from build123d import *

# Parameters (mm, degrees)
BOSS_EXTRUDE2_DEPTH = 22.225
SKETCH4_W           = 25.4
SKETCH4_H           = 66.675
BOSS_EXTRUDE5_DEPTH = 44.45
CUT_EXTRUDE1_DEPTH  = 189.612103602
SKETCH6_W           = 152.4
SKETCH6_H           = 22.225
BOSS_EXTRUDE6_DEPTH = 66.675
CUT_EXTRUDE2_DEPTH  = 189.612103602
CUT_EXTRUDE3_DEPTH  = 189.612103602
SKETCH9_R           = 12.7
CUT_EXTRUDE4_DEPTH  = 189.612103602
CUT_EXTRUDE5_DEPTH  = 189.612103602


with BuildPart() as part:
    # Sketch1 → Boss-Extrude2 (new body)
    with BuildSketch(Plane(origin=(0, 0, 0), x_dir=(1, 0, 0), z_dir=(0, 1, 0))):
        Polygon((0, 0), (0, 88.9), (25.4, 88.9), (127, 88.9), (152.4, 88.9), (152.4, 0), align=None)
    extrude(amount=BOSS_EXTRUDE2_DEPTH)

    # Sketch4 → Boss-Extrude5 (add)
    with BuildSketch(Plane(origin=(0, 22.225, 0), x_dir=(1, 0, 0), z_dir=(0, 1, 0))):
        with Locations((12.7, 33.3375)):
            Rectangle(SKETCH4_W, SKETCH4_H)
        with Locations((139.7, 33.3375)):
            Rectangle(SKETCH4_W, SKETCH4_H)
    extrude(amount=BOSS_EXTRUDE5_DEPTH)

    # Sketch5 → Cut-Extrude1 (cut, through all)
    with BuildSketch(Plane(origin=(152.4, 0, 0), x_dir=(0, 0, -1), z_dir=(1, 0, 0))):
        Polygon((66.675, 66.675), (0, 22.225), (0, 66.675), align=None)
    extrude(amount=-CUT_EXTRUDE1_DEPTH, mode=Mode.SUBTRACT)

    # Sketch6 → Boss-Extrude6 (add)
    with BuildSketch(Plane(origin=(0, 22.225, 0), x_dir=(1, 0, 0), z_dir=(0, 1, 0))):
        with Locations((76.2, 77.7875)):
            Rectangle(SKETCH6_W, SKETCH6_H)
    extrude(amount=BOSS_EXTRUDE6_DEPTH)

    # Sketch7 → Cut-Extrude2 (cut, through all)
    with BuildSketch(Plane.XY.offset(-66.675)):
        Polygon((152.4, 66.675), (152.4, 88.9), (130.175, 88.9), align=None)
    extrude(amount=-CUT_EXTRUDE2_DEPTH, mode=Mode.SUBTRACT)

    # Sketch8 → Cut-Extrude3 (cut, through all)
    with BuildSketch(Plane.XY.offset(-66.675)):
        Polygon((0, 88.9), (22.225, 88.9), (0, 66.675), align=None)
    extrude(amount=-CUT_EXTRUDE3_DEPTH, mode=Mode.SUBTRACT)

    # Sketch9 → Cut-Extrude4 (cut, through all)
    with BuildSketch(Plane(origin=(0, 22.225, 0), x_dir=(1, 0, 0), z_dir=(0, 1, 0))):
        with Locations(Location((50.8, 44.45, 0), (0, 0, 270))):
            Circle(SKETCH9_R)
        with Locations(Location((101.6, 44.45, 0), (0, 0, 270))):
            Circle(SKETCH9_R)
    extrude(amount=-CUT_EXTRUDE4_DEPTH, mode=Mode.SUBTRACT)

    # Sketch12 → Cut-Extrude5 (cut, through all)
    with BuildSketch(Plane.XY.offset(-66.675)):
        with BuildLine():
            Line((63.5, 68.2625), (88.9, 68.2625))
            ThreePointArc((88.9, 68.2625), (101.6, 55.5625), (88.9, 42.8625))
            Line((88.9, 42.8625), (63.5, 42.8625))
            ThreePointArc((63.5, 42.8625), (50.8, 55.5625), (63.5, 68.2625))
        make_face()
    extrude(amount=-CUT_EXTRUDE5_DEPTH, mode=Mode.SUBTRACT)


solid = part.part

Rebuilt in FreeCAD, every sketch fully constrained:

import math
import FreeCAD as App
import Part
import Sketcher
Q = App.Units.Quantity

doc = App.newDocument("Part")
params = doc.addObject("Spreadsheet::Sheet", "Params")
for row, (alias, value) in enumerate([
    ("sketch1_width", "6 in"),
    ("sketch1_height", "3.5 in"),
    ("pad1_length", "0.875 in"),
    ("sketch2_width", "1 in"),
    ("sketch2_height", "2.625 in"),
    ("pad2_length", "1.75 in"),
    ("sketch3_width", "1.75 in"),
    ("sketch3_height", "2.625 in"),
    ("sketch4_width", "6 in"),
    ("sketch4_height", "0.875 in"),
    ("pad3_length", "2.625 in"),
    ("sketch5_width", "0.875 in"),
    ("sketch6_width", "0.875 in"),
    ("sketch7_diameter", "1 in"),
    ("sketch8_radius", "0.5 in"),
    ("sketch8_width", "1 in"),
], start=1):
    params.set(f"A{row}", alias)
    params.set(f"B{row}", "=" + value)
    params.setAlias(f"B{row}", alias)

body = doc.addObject("PartDesign::Body", "Body")

sketch1 = doc.addObject("Sketcher::SketchObject", "Sketch")
body.addObject(sketch1)
sketch1.AttachmentSupport = (doc.XZ_Plane, [""])
sketch1.MapMode = "FlatFace"
sketch1.addGeometry(Part.LineSegment(App.Vector(0, -88.9, 0), App.Vector(0, 0, 0)), False)
sketch1.addGeometry(Part.LineSegment(App.Vector(0, 0, 0), App.Vector(152.4, 0, 0)), False)
sketch1.addGeometry(Part.LineSegment(App.Vector(152.4, 0, 0), App.Vector(152.4, -88.9, 0)), False)
sketch1.addGeometry(Part.LineSegment(App.Vector(152.4, -88.9, 0), App.Vector(0, -88.9, 0)), False)
sketch1.addConstraint(Sketcher.Constraint("Coincident", 0, 2, 1, 1))
sketch1.addConstraint(Sketcher.Constraint("Coincident", 1, 2, 2, 1))
sketch1.addConstraint(Sketcher.Constraint("Coincident", 2, 2, 3, 1))
sketch1.addConstraint(Sketcher.Constraint("Coincident", 3, 2, 0, 1))
sketch1.addConstraint(Sketcher.Constraint("Vertical", 0))
sketch1.addConstraint(Sketcher.Constraint("Horizontal", 1))
sketch1.addConstraint(Sketcher.Constraint("Vertical", 2))
sketch1.addConstraint(Sketcher.Constraint("Horizontal", 3))
sketch1.addConstraint(Sketcher.Constraint("Coincident", 0, 2, -1, 1))
sketch1.addConstraint(Sketcher.Constraint("DistanceX", 1, 1, 1, 2, Q("6 in")))
sketch1.addConstraint(Sketcher.Constraint("DistanceY", 0, 1, 0, 2, Q("3.5 in")))
sketch1.setExpression("Constraints[9]", "Params.sketch1_width")
sketch1.setExpression("Constraints[10]", "Params.sketch1_height")
pad1 = doc.addObject("PartDesign::Pad", "Pad")
body.addObject(pad1)
pad1.Profile = sketch1
pad1.setExpression("Length", "Params.pad1_length")
pad1.Reversed = True

sketch2 = doc.addObject("Sketcher::SketchObject", "Sketch001")
body.addObject(sketch2)
sketch2.AttachmentSupport = (doc.XZ_Plane, [""])
sketch2.MapMode = "FlatFace"
sketch2.AttachmentOffset = App.Placement(App.Vector(0, 0, -0.875 * 25.4), App.Rotation())
sketch2.addGeometry(Part.LineSegment(App.Vector(0, -66.675, 0), App.Vector(0, 0, 0)), False)
sketch2.addGeometry(Part.LineSegment(App.Vector(0, 0, 0), App.Vector(25.4, 0, 0)), False)
sketch2.addGeometry(Part.LineSegment(App.Vector(25.4, 0, 0), App.Vector(25.4, -66.675, 0)), False)
sketch2.addGeometry(Part.LineSegment(App.Vector(25.4, -66.675, 0), App.Vector(0, -66.675, 0)), False)
sketch2.addGeometry(Part.LineSegment(App.Vector(127, -66.675, 0), App.Vector(127, 0, 0)), False)
sketch2.addGeometry(Part.LineSegment(App.Vector(127, 0, 0), App.Vector(152.4, 0, 0)), False)
sketch2.addGeometry(Part.LineSegment(App.Vector(152.4, 0, 0), App.Vector(152.4, -66.675, 0)), False)
sketch2.addGeometry(Part.LineSegment(App.Vector(152.4, -66.675, 0), App.Vector(127, -66.675, 0)), False)
sketch2.addConstraint(Sketcher.Constraint("Coincident", 0, 2, 1, 1))
sketch2.addConstraint(Sketcher.Constraint("Coincident", 1, 2, 2, 1))
sketch2.addConstraint(Sketcher.Constraint("Coincident", 2, 2, 3, 1))
sketch2.addConstraint(Sketcher.Constraint("Coincident", 3, 2, 0, 1))
sketch2.addConstraint(Sketcher.Constraint("Coincident", 4, 2, 5, 1))
sketch2.addConstraint(Sketcher.Constraint("Coincident", 5, 2, 6, 1))
sketch2.addConstraint(Sketcher.Constraint("Coincident", 6, 2, 7, 1))
sketch2.addConstraint(Sketcher.Constraint("Coincident", 7, 2, 4, 1))
sketch2.addConstraint(Sketcher.Constraint("Vertical", 0))
sketch2.addConstraint(Sketcher.Constraint("Horizontal", 1))
sketch2.addConstraint(Sketcher.Constraint("Vertical", 2))
sketch2.addConstraint(Sketcher.Constraint("Horizontal", 3))
sketch2.addConstraint(Sketcher.Constraint("Vertical", 4))
sketch2.addConstraint(Sketcher.Constraint("Horizontal", 5))
sketch2.addConstraint(Sketcher.Constraint("Vertical", 6))
sketch2.addConstraint(Sketcher.Constraint("Horizontal", 7))
sketch2.addConstraint(Sketcher.Constraint("Coincident", 0, 2, -1, 1))
sketch2.addConstraint(Sketcher.Constraint("PointOnObject", 4, 2, -1))
sketch2.addConstraint(Sketcher.Constraint("Horizontal", 3, 2, 6, 2))
sketch2.addConstraint(Sketcher.Constraint("Equal", 3, 5))
sketch2.addConstraint(Sketcher.Constraint("DistanceX", 1, 1, 1, 2, Q("1 in")))
sketch2.addConstraint(Sketcher.Constraint("DistanceX", -1, 1, 4, 2, Q("5 in")))
sketch2.addConstraint(Sketcher.Constraint("DistanceY", 0, 1, 0, 2, Q("2.625 in")))
sketch2.setExpression("Constraints[20]", "Params.sketch2_width")
sketch2.setExpression("Constraints[22]", "Params.sketch2_height")
pad2 = doc.addObject("PartDesign::Pad", "Pad001")
body.addObject(pad2)
pad2.Profile = sketch2
pad2.setExpression("Length", "Params.pad2_length")
pad2.Reversed = True

sketch3 = doc.addObject("Sketcher::SketchObject", "Sketch002")
body.addObject(sketch3)
sketch3.AttachmentSupport = (doc.YZ_Plane, [""])
sketch3.MapMode = "FlatFace"
sketch3.AttachmentOffset = App.Placement(App.Vector(0, 0, 6 * 25.4), App.Rotation())
sketch3.addGeometry(Part.LineSegment(App.Vector(22.225, 0, 0), App.Vector(66.675, -66.675, 0)), False)
sketch3.addGeometry(Part.LineSegment(App.Vector(66.675, -66.675, 0), App.Vector(66.675, 0, 0)), False)
sketch3.addGeometry(Part.LineSegment(App.Vector(66.675, 0, 0), App.Vector(22.225, 0, 0)), False)
sketch3.addConstraint(Sketcher.Constraint("Coincident", 0, 2, 1, 1))
sketch3.addConstraint(Sketcher.Constraint("Coincident", 1, 2, 2, 1))
sketch3.addConstraint(Sketcher.Constraint("Coincident", 2, 2, 0, 1))
sketch3.addConstraint(Sketcher.Constraint("Vertical", 1))
sketch3.addConstraint(Sketcher.Constraint("Horizontal", 2))
sketch3.addConstraint(Sketcher.Constraint("PointOnObject", 1, 2, -1))
sketch3.addConstraint(Sketcher.Constraint("DistanceX", 2, 2, 2, 1, Q("1.75 in")))
sketch3.addConstraint(Sketcher.Constraint("DistanceY", 1, 1, 1, 2, Q("2.625 in")))
sketch3.addConstraint(Sketcher.Constraint("DistanceX", -1, 1, 0, 2, Q("2.625 in")))
sketch3.setExpression("Constraints[6]", "Params.sketch3_width")
sketch3.setExpression("Constraints[7]", "Params.sketch3_height")
pocket1 = doc.addObject("PartDesign::Pocket", "Pocket")
body.addObject(pocket1)
pocket1.Profile = sketch3
pocket1.Type = "ThroughAll"

sketch4 = doc.addObject("Sketcher::SketchObject", "Sketch003")
body.addObject(sketch4)
sketch4.AttachmentSupport = (doc.XZ_Plane, [""])
sketch4.MapMode = "FlatFace"
sketch4.AttachmentOffset = App.Placement(App.Vector(0, 0, -0.875 * 25.4), App.Rotation())
sketch4.addGeometry(Part.LineSegment(App.Vector(0, -88.9, 0), App.Vector(0, -66.675, 0)), False)
sketch4.addGeometry(Part.LineSegment(App.Vector(0, -66.675, 0), App.Vector(152.4, -66.675, 0)), False)
sketch4.addGeometry(Part.LineSegment(App.Vector(152.4, -66.675, 0), App.Vector(152.4, -88.9, 0)), False)
sketch4.addGeometry(Part.LineSegment(App.Vector(152.4, -88.9, 0), App.Vector(0, -88.9, 0)), False)
sketch4.addConstraint(Sketcher.Constraint("Coincident", 0, 2, 1, 1))
sketch4.addConstraint(Sketcher.Constraint("Coincident", 1, 2, 2, 1))
sketch4.addConstraint(Sketcher.Constraint("Coincident", 2, 2, 3, 1))
sketch4.addConstraint(Sketcher.Constraint("Coincident", 3, 2, 0, 1))
sketch4.addConstraint(Sketcher.Constraint("Vertical", 0))
sketch4.addConstraint(Sketcher.Constraint("Horizontal", 1))
sketch4.addConstraint(Sketcher.Constraint("Vertical", 2))
sketch4.addConstraint(Sketcher.Constraint("Horizontal", 3))
sketch4.addConstraint(Sketcher.Constraint("PointOnObject", 0, 2, -2))
sketch4.addConstraint(Sketcher.Constraint("DistanceX", 1, 1, 1, 2, Q("6 in")))
sketch4.addConstraint(Sketcher.Constraint("DistanceY", 2, 2, -1, 1, Q("3.5 in")))
sketch4.addConstraint(Sketcher.Constraint("DistanceY", 0, 1, 0, 2, Q("0.875 in")))
sketch4.setExpression("Constraints[9]", "Params.sketch4_width")
sketch4.setExpression("Constraints[11]", "Params.sketch4_height")
pad3 = doc.addObject("PartDesign::Pad", "Pad002")
body.addObject(pad3)
pad3.Profile = sketch4
pad3.setExpression("Length", "Params.pad3_length")
pad3.Reversed = True

sketch5 = doc.addObject("Sketcher::SketchObject", "Sketch004")
body.addObject(sketch5)
sketch5.AttachmentSupport = (doc.XY_Plane, [""])
sketch5.MapMode = "FlatFace"
sketch5.AttachmentOffset = App.Placement(App.Vector(0, 0, -2.625 * 25.4), App.Rotation())
sketch5.addGeometry(Part.LineSegment(App.Vector(152.4, 66.675, 0), App.Vector(152.4, 88.9, 0)), False)
sketch5.addGeometry(Part.LineSegment(App.Vector(152.4, 88.9, 0), App.Vector(130.175, 88.9, 0)), False)
sketch5.addGeometry(Part.LineSegment(App.Vector(130.175, 88.9, 0), App.Vector(152.4, 66.675, 0)), False)
sketch5.addConstraint(Sketcher.Constraint("Coincident", 0, 2, 1, 1))
sketch5.addConstraint(Sketcher.Constraint("Coincident", 1, 2, 2, 1))
sketch5.addConstraint(Sketcher.Constraint("Coincident", 2, 2, 0, 1))
sketch5.addConstraint(Sketcher.Constraint("Vertical", 0))
sketch5.addConstraint(Sketcher.Constraint("Horizontal", 1))
sketch5.addConstraint(Sketcher.Constraint("Equal", 1, 0))
sketch5.addConstraint(Sketcher.Constraint("DistanceX", -1, 1, 0, 2, Q("6 in")))
sketch5.addConstraint(Sketcher.Constraint("DistanceY", -1, 1, 0, 2, Q("3.5 in")))
sketch5.addConstraint(Sketcher.Constraint("DistanceX", 1, 2, 1, 1, Q("0.875 in")))
sketch5.setExpression("Constraints[8]", "Params.sketch5_width")
pocket2 = doc.addObject("PartDesign::Pocket", "Pocket001")
body.addObject(pocket2)
pocket2.Profile = sketch5
pocket2.Type = "ThroughAll"

sketch6 = doc.addObject("Sketcher::SketchObject", "Sketch005")
body.addObject(sketch6)
sketch6.AttachmentSupport = (doc.XY_Plane, [""])
sketch6.MapMode = "FlatFace"
sketch6.AttachmentOffset = App.Placement(App.Vector(0, 0, -2.625 * 25.4), App.Rotation())
sketch6.addGeometry(Part.LineSegment(App.Vector(22.225, 88.9, 0), App.Vector(0, 88.9, 0)), False)
sketch6.addGeometry(Part.LineSegment(App.Vector(0, 88.9, 0), App.Vector(0, 66.675, 0)), False)
sketch6.addGeometry(Part.LineSegment(App.Vector(0, 66.675, 0), App.Vector(22.225, 88.9, 0)), False)
sketch6.addConstraint(Sketcher.Constraint("Coincident", 0, 2, 1, 1))
sketch6.addConstraint(Sketcher.Constraint("Coincident", 1, 2, 2, 1))
sketch6.addConstraint(Sketcher.Constraint("Coincident", 2, 2, 0, 1))
sketch6.addConstraint(Sketcher.Constraint("Horizontal", 0))
sketch6.addConstraint(Sketcher.Constraint("Vertical", 1))
sketch6.addConstraint(Sketcher.Constraint("PointOnObject", 0, 2, -2))
sketch6.addConstraint(Sketcher.Constraint("Equal", 0, 1))
sketch6.addConstraint(Sketcher.Constraint("DistanceY", -1, 1, 0, 2, Q("3.5 in")))
sketch6.addConstraint(Sketcher.Constraint("DistanceX", 0, 2, 0, 1, Q("0.875 in")))
sketch6.setExpression("Constraints[8]", "Params.sketch6_width")
pocket3 = doc.addObject("PartDesign::Pocket", "Pocket002")
body.addObject(pocket3)
pocket3.Profile = sketch6
pocket3.Type = "ThroughAll"

sketch7 = doc.addObject("Sketcher::SketchObject", "Sketch006")
body.addObject(sketch7)
sketch7.AttachmentSupport = (doc.XZ_Plane, [""])
sketch7.MapMode = "FlatFace"
sketch7.AttachmentOffset = App.Placement(App.Vector(0, 0, -0.875 * 25.4), App.Rotation())
sketch7.addGeometry(Part.Circle(App.Vector(50.8, -44.45, 0), App.Vector(0, 0, 1), 12.7), False)
sketch7.addGeometry(Part.Circle(App.Vector(101.6, -44.45, 0), App.Vector(0, 0, 1), 12.7), False)
sketch7.addConstraint(Sketcher.Constraint("Equal", 0, 1))
sketch7.addConstraint(Sketcher.Constraint("Horizontal", 0, 3, 1, 3))
sketch7.addConstraint(Sketcher.Constraint("Diameter", 0, Q("1 in")))
sketch7.addConstraint(Sketcher.Constraint("DistanceX", -1, 1, 0, 3, Q("2 in")))
sketch7.addConstraint(Sketcher.Constraint("DistanceX", -1, 1, 1, 3, Q("4 in")))
sketch7.addConstraint(Sketcher.Constraint("DistanceY", 0, 3, -1, 1, Q("1.75 in")))
sketch7.setExpression("Constraints[2]", "Params.sketch7_diameter")
pocket4 = doc.addObject("PartDesign::Pocket", "Pocket003")
body.addObject(pocket4)
pocket4.Profile = sketch7
pocket4.Type = "ThroughAll"
pocket4.Reversed = True

sketch8 = doc.addObject("Sketcher::SketchObject", "Sketch007")
body.addObject(sketch8)
sketch8.AttachmentSupport = (doc.XY_Plane, [""])
sketch8.MapMode = "FlatFace"
sketch8.AttachmentOffset = App.Placement(App.Vector(0, 0, -2.625 * 25.4), App.Rotation())
sketch8.addGeometry(Part.LineSegment(App.Vector(88.9, 68.2625, 0), App.Vector(63.5, 68.2625, 0)), False)
sketch8.addGeometry(Part.ArcOfCircle(Part.Circle(App.Vector(63.5, 55.5625, 0), App.Vector(0, 0, 1), 12.7), math.radians(90), math.radians(270)), False)
sketch8.addGeometry(Part.LineSegment(App.Vector(63.5, 42.8625, 0), App.Vector(88.9, 42.8625, 0)), False)
sketch8.addGeometry(Part.ArcOfCircle(Part.Circle(App.Vector(88.9, 55.5625, 0), App.Vector(0, 0, 1), 12.7), math.radians(-90), math.radians(90)), False)
sketch8.addConstraint(Sketcher.Constraint("Tangent", 0, 2, 1, 1))
sketch8.addConstraint(Sketcher.Constraint("Tangent", 1, 2, 2, 1))
sketch8.addConstraint(Sketcher.Constraint("Tangent", 2, 2, 3, 1))
sketch8.addConstraint(Sketcher.Constraint("Tangent", 3, 2, 0, 1))
sketch8.addConstraint(Sketcher.Constraint("Horizontal", 0))
sketch8.addConstraint(Sketcher.Constraint("Horizontal", 2))
sketch8.addConstraint(Sketcher.Constraint("Radius", 1, Q("0.5 in")))
sketch8.addConstraint(Sketcher.Constraint("DistanceX", 0, 2, 0, 1, Q("1 in")))
sketch8.addConstraint(Sketcher.Constraint("DistanceX", -1, 1, 1, 3, Q("2.5 in")))
sketch8.addConstraint(Sketcher.Constraint("DistanceY", -1, 1, 1, 3, Q("2.1875 in")))
sketch8.setExpression("Constraints[6]", "Params.sketch8_radius")
sketch8.setExpression("Constraints[7]", "Params.sketch8_width")
pocket5 = doc.addObject("PartDesign::Pocket", "Pocket004")
body.addObject(pocket5)
pocket5.Profile = sketch8
pocket5.Type = "ThroughAll"

doc.recompute()
